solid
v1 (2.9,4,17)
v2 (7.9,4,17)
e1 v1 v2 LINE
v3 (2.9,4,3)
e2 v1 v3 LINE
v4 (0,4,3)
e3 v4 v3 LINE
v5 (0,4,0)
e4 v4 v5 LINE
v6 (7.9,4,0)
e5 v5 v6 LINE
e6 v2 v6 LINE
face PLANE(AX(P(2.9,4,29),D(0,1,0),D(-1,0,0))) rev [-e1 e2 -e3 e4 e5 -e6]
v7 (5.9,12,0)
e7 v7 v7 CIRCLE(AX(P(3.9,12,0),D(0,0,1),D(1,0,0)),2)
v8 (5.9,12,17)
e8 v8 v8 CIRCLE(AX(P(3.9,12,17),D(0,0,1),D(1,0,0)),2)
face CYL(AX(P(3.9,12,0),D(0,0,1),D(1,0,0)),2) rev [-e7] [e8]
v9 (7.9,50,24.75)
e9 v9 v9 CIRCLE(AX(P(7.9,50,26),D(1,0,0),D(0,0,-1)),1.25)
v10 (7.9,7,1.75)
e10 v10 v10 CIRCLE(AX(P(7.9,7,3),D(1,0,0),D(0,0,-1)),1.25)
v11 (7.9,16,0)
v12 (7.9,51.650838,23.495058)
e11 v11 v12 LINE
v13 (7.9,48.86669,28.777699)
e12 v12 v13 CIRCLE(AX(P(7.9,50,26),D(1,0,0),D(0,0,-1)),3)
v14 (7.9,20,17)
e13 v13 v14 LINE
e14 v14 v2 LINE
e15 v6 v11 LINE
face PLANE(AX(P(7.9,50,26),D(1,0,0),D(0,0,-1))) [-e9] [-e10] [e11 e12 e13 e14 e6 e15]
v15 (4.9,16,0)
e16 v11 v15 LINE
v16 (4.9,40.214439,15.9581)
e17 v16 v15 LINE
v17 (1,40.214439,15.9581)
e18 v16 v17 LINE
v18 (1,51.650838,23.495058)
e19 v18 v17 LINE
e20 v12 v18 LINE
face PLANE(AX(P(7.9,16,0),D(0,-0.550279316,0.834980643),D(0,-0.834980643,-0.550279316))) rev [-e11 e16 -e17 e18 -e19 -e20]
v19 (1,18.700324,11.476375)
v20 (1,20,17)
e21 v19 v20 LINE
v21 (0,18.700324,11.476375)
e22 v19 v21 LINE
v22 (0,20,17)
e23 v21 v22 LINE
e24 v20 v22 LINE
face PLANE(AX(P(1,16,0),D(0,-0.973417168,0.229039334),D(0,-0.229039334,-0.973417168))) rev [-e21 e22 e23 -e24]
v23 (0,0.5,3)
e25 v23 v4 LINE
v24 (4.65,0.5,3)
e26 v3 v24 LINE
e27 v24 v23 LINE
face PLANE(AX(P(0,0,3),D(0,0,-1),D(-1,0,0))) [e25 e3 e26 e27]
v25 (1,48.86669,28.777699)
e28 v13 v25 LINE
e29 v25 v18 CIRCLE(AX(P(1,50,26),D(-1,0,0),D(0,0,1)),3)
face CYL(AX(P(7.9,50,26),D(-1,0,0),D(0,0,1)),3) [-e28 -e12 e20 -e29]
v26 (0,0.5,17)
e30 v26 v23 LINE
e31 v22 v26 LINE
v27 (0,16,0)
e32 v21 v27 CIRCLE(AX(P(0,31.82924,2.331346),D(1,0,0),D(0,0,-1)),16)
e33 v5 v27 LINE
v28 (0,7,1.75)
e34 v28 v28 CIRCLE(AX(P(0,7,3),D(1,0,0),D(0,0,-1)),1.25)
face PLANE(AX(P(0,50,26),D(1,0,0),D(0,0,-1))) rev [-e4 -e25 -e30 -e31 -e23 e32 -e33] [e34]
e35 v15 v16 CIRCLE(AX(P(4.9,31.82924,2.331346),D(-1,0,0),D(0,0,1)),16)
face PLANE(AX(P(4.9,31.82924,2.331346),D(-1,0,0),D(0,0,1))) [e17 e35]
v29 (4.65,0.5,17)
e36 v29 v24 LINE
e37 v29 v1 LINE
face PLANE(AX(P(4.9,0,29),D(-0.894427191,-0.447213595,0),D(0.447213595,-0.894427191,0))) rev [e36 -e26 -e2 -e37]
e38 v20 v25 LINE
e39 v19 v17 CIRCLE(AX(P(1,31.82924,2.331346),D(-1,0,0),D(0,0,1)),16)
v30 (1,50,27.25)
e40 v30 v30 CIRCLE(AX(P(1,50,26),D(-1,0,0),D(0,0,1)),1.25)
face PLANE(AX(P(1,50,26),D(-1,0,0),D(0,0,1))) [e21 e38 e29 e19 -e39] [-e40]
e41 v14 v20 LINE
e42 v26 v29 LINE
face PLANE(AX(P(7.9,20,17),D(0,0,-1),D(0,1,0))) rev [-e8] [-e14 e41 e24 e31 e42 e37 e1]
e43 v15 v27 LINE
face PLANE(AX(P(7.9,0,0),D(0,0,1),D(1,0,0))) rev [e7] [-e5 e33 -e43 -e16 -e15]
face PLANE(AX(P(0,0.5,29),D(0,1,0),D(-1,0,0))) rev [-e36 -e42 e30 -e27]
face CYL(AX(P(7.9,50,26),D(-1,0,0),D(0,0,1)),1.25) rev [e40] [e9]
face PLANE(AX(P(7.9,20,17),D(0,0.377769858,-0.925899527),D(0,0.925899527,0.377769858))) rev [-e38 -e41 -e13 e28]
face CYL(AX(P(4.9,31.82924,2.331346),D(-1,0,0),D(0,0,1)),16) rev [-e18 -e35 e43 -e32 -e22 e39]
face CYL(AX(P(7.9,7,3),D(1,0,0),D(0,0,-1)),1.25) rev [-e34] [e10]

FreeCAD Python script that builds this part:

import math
import FreeCAD as App
import Part
import Sketcher
from FreeCAD import Vector

doc = App.newDocument("Part")
body = doc.addObject("PartDesign::Body", "Body")

# Sketch on YZ plane
sketch1 = body.newObject("Sketcher::SketchObject", "Sketch")
sketch1.AttachmentSupport = (doc.getObject("YZ_Plane"), [""])
sketch1.MapMode = "FlatFace"
sketch1.addGeometry(Part.LineSegment(Vector(0, 0, 0), Vector(16, 0, 0)), False)
sketch1.addGeometry(Part.LineSegment(Vector(16, 0, 0), Vector(51.7, 23.5, 0)), False)
sketch1.addGeometry(Part.ArcOfCircle(Part.Circle(Vector(50, 26, 0), Vector(0, 0, 1), 3), math.radians(-57), math.radians(112)), False)
sketch1.addGeometry(Part.LineSegment(Vector(48.9, 28.8, 0), Vector(20, 17, 0)), False)
sketch1.addGeometry(Part.LineSegment(Vector(20, 17, 0), Vector(0, 17, 0)), False)
sketch1.addGeometry(Part.LineSegment(Vector(0, 17, 0), Vector(0, 0, 0)), False)
sketch1.addGeometry(Part.Circle(Vector(50, 26, 0), Vector(0, 0, 1), 1.2), False)
sketch1.addConstraint(Sketcher.Constraint("Coincident", 0, 2, 1, 1))
sketch1.addConstraint(Sketcher.Constraint("Tangent", 1, 2, 2, 1))
sketch1.addConstraint(Sketcher.Constraint("Tangent", 2, 2, 3, 1))
sketch1.addConstraint(Sketcher.Constraint("Coincident", 3, 2, 4, 1))
sketch1.addConstraint(Sketcher.Constraint("Coincident", 4, 2, 5, 1))
sketch1.addConstraint(Sketcher.Constraint("Coincident", 5, 2, 0, 1))
sketch1.addConstraint(Sketcher.Constraint("Horizontal", 0))
sketch1.addConstraint(Sketcher.Constraint("Horizontal", 4))
sketch1.addConstraint(Sketcher.Constraint("Vertical", 5))
sketch1.addConstraint(Sketcher.Constraint("Coincident", 5, 2, -1, 1))
sketch1.addConstraint(Sketcher.Constraint("Coincident", 6, 3, 2, 3))
sketch1.addConstraint(Sketcher.Constraint("Radius", 2, 3.0))
sketch1.addConstraint(Sketcher.Constraint("Diameter", 6, 2.5))
sketch1.addConstraint(Sketcher.Constraint("DistanceX", 0, 1, 0, 2, 16.0))
sketch1.addConstraint(Sketcher.Constraint("DistanceX", 4, 2, 4, 1, 20.0))
sketch1.addConstraint(Sketcher.Constraint("DistanceY", 5, 2, 5, 1, 17.0))
sketch1.addConstraint(Sketcher.Constraint("DistanceX", -1, 1, 2, 3, 50.0))
sketch1.addConstraint(Sketcher.Constraint("DistanceY", -1, 1, 2, 3, 26.0))
pad1 = body.newObject("PartDesign::Pad", "Pad")
pad1.Profile = sketch1
pad1.Length = 7.9

# Sketch on XY plane
sketch2 = body.newObject("Sketcher::SketchObject", "Sketch001")
sketch2.AttachmentSupport = (doc.getObject("XY_Plane"), [""])
sketch2.MapMode = "FlatFace"
sketch2.addGeometry(Part.LineSegment(Vector(7.9, 0, 0), Vector(4.9, 0, 0)), False)
sketch2.addGeometry(Part.LineSegment(Vector(4.9, 0, 0), Vector(2.9, 4, 0)), False)
sketch2.addGeometry(Part.LineSegment(Vector(2.9, 4, 0), Vector(7.9, 4, 0)), False)
sketch2.addGeometry(Part.LineSegment(Vector(7.9, 4, 0), Vector(7.9, 0, 0)), False)
sketch2.addConstraint(Sketcher.Constraint("Coincident", 0, 2, 1, 1))
sketch2.addConstraint(Sketcher.Constraint("Coincident", 1, 2, 2, 1))
sketch2.addConstraint(Sketcher.Constraint("Coincident", 2, 2, 3, 1))
sketch2.addConstraint(Sketcher.Constraint("Coincident", 3, 2, 0, 1))
sketch2.addConstraint(Sketcher.Constraint("Horizontal", 0))
sketch2.addConstraint(Sketcher.Constraint("Horizontal", 2))
sketch2.addConstraint(Sketcher.Constraint("Vertical", 3))
sketch2.addConstraint(Sketcher.Constraint("PointOnObject", 0, 2, -1))
sketch2.addConstraint(Sketcher.Constraint("DistanceX", 0, 2, 0, 1, 3.0))
sketch2.addConstraint(Sketcher.Constraint("DistanceX", 2, 1, 2, 2, 5.0))
sketch2.addConstraint(Sketcher.Constraint("DistanceY", 3, 2, 3, 1, 4.0))
sketch2.addConstraint(Sketcher.Constraint("DistanceX", -1, 1, 0, 2, 4.9))
pocket1 = body.newObject("PartDesign::Pocket", "Pocket")
pocket1.Profile = sketch2
pocket1.Type = "ThroughAll"
pocket1.Reversed = True

# Sketch on YZ plane
sketch3 = body.newObject("Sketcher::SketchObject", "Sketch002")
sketch3.AttachmentSupport = (doc.getObject("YZ_Plane"), [""])
sketch3.MapMode = "FlatFace"
sketch3.AttachmentOffset = App.Placement(Vector(0, 0, 7.9), App.Rotation())
sketch3.addGeometry(Part.Circle(Vector(7, 3, 0), Vector(0, 0, 1), 1.2), False)
sketch3.addConstraint(Sketcher.Constraint("Diameter", 0, 2.5))
sketch3.addConstraint(Sketcher.Constraint("DistanceX", -1, 1, 0, 3, 7.0))
sketch3.addConstraint(Sketcher.Constraint("DistanceY", -1, 1, 0, 3, 3.0))
doc.recompute()
hole = body.newObject("PartDesign::Hole", "Hole")
hole.Profile = sketch3
hole.ThreadType = "None"
hole.Diameter = 2.5
hole.DepthType = "ThroughAll"

# Sketch on XY plane
sketch4 = body.newObject("Sketcher::SketchObject", "Sketch003")
sketch4.AttachmentSupport = (doc.getObject("XY_Plane"), [""])
sketch4.MapMode = "FlatFace"
sketch4.addGeometry(Part.LineSegment(Vector(8, 0.5, 0), Vector(8, 0, 0)), False)
sketch4.addGeometry(Part.LineSegment(Vector(8, 0, 0), Vector(0, 0, 0)), False)
sketch4.addGeometry(Part.LineSegment(Vector(0, 0, 0), Vector(0, 0.5, 0)), False)
sketch4.addGeometry(Part.LineSegment(Vector(0, 0.5, 0), Vector(8, 0.5, 0)), False)
sketch4.addConstraint(Sketcher.Constraint("Coincident", 0, 2, 1, 1))
sketch4.addConstraint(Sketcher.Constraint("Coincident", 1, 2, 2, 1))
sketch4.addConstraint(Sketcher.Constraint("Coincident", 2, 2, 3, 1))
sketch4.addConstraint(Sketcher.Constraint("Coincident", 3, 2, 0, 1))
sketch4.addConstraint(Sketcher.Constraint("Vertical", 0))
sketch4.addConstraint(Sketcher.Constraint("Horizontal", 1))
sketch4.addConstraint(Sketcher.Constraint("Vertical", 2))
sketch4.addConstraint(Sketcher.Constraint("Horizontal", 3))
sketch4.addConstraint(Sketcher.Constraint("Coincident", 1, 2, -1, 1))
sketch4.addConstraint(Sketcher.Constraint("DistanceX", 1, 2, 1, 1, 8.0))
sketch4.addConstraint(Sketcher.Constraint("DistanceY", 0, 2, 0, 1, 0.5))
pocket2 = body.newObject("PartDesign::Pocket", "Pocket001")
pocket2.Profile = sketch4
pocket2.Type = "ThroughAll"
pocket2.Reversed = True

# Sketch on XY plane
sketch5 = body.newObject("Sketcher::SketchObject", "Sketch004")
sketch5.AttachmentSupport = (doc.getObject("XY_Plane"), [""])
sketch5.MapMode = "FlatFace"
sketch5.AttachmentOffset = App.Placement(Vector(0, 0, 17), App.Rotation())
sketch5.addGeometry(Part.Circle(Vector(3.9, 12, 0), Vector(0, 0, 1), 2), False)
sketch5.addConstraint(Sketcher.Constraint("Diameter", 0, 4.0))
sketch5.addConstraint(Sketcher.Constraint("DistanceY", -1, 1, 0, 3, 12.0))
sketch5.addConstraint(Sketcher.Constraint("DistanceX", -1, 1, 0, 3, 3.9))
pocket3 = body.newObject("PartDesign::Pocket", "Pocket002")
pocket3.Profile = sketch5
pocket3.Type = "ThroughAll"

# Sketch on XY plane
sketch6 = body.newObject("Sketcher::SketchObject", "Sketch005")
sketch6.AttachmentSupport = (doc.getObject("XY_Plane"), [""])
sketch6.MapMode = "FlatFace"
sketch6.addGeometry(Part.LineSegment(Vector(2.9, 4, 0), Vector(4.7, 0.5, 0)), False)
sketch6.addGeometry(Part.LineSegment(Vector(4.7, 0.5, 0), Vector(0, 0.5, 0)), False)
sketch6.addGeometry(Part.LineSegment(Vector(0, 0.5, 0), Vector(0, 4, 0)), False)
sketch6.addGeometry(Part.LineSegment(Vector(0, 4, 0), Vector(2.9, 4, 0)), False)
sketch6.addConstraint(Sketcher.Constraint("Coincident", 0, 2, 1, 1))
sketch6.addConstraint(Sketcher.Constraint("Coincident", 1, 2, 2, 1))
sketch6.addConstraint(Sketcher.Constraint("Coincident", 2, 2, 3, 1))
sketch6.addConstraint(Sketcher.Constraint("Coincident", 3, 2, 0, 1))
sketch6.addConstraint(Sketcher.Constraint("Horizontal", 1))
sketch6.addConstraint(Sketcher.Constraint("Vertical", 2))
sketch6.addConstraint(Sketcher.Constraint("Horizontal", 3))
sketch6.addConstraint(Sketcher.Constraint("PointOnObject", 1, 2, -2))
sketch6.addConstraint(Sketcher.Constraint("DistanceX", 3, 1, 3, 2, 2.9))
sketch6.addConstraint(Sketcher.Constraint("DistanceY", 2, 1, 2, 2, 3.5))
sketch6.addConstraint(Sketcher.Constraint("DistanceY", -1, 1, 2, 2, 4.0))
sketch6.addConstraint(Sketcher.Constraint("DistanceX", 1, 2, 1, 1, 4.65))
pocket4 = body.newObject("PartDesign::Pocket", "Pocket003")
pocket4.Profile = sketch6
pocket4.Length = 3
pocket4.Reversed = True

# Sketch on YZ plane
sketch7 = body.newObject("Sketcher::SketchObject", "Sketch006")
sketch7.AttachmentSupport = (doc.getObject("YZ_Plane"), [""])
sketch7.MapMode = "FlatFace"
sketch7.addGeometry(Part.LineSegment(Vector(16, 0, 0), Vector(20, 17, 0)), False)
sketch7.addGeometry(Part.LineSegment(Vector(20, 17, 0), Vector(48.9, 28.8, 0)), False)
sketch7.addGeometry(Part.ArcOfCircle(Part.Circle(Vector(50, 26, 0), Vector(0, 0, 1), 3), math.radians(-57), math.radians(112)), False)
sketch7.addGeometry(Part.LineSegment(Vector(51.7, 23.5, 0), Vector(16, 0, 0)), False)
sketch7.addConstraint(Sketcher.Constraint("Coincident", 0, 2, 1, 1))
sketch7.addConstraint(Sketcher.Constraint("Tangent", 1, 2, 2, 2))
sketch7.addConstraint(Sketcher.Constraint("Tangent", 2, 1, 3, 1))
sketch7.addConstraint(Sketcher.Constraint("Coincident", 3, 2, 0, 1))
sketch7.addConstraint(Sketcher.Constraint("PointOnObject", 3, 2, -1))
sketch7.addConstraint(Sketcher.Constraint("Radius", 2, 3.0))
sketch7.addConstraint(Sketcher.Constraint("DistanceX", -1, 1, 2, 3, 50.0))
sketch7.addConstraint(Sketcher.Constraint("DistanceY", -1, 1, 2, 3, 26.0))
sketch7.addConstraint(Sketcher.Constraint("DistanceX", -1, 1, 0, 2, 20.0))
sketch7.addConstraint(Sketcher.Constraint("DistanceY", -1, 1, 0, 2, 17.0))
sketch7.addConstraint(Sketcher.Constraint("DistanceX", -1, 1, 3, 2, 16.0))
pocket5 = body.newObject("PartDesign::Pocket", "Pocket004")
pocket5.Profile = sketch7
pocket5.Length = 1
pocket5.Reversed = True

# Sketch on YZ plane
sketch8 = body.newObject("Sketcher::SketchObject", "Sketch007")
sketch8.AttachmentSupport = (doc.getObject("YZ_Plane"), [""])
sketch8.MapMode = "FlatFace"
sketch8.AttachmentOffset = App.Placement(Vector(0, 0, 1), App.Rotation())
sketch8.addGeometry(Part.LineSegment(Vector(40, 16, 0), Vector(16, 0, 0)), False)
sketch8.addGeometry(Part.ArcOfCircle(Part.Circle(Vector(32, 2, 0), Vector(0, 0, 1), 16), math.radians(58), math.radians(188)), False)
sketch8.addConstraint(Sketcher.Constraint("Coincident", 0, 1, 1, 1))
sketch8.addConstraint(Sketcher.Constraint("Coincident", 1, 2, 0, 2))
sketch8.addConstraint(Sketcher.Constraint("PointOnObject", 1, 2, -1))
sketch8.addConstraint(Sketcher.Constraint("Radius", 1, 16.0))
sketch8.addConstraint(Sketcher.Constraint("Distance", 0, 29.0))
sketch8.addConstraint(Sketcher.Constraint("DistanceX", -1, 1, 1, 2, 16.0))
sketch8.addConstraint(Sketcher.Constraint("DistanceY", -1, 1, 0, 1, 15.9581))
pocket6 = body.newObject("PartDesign::Pocket", "Pocket005")
pocket6.Profile = sketch8
pocket6.Length = 7.8
pocket6.Midplane = True

doc.recompute()
